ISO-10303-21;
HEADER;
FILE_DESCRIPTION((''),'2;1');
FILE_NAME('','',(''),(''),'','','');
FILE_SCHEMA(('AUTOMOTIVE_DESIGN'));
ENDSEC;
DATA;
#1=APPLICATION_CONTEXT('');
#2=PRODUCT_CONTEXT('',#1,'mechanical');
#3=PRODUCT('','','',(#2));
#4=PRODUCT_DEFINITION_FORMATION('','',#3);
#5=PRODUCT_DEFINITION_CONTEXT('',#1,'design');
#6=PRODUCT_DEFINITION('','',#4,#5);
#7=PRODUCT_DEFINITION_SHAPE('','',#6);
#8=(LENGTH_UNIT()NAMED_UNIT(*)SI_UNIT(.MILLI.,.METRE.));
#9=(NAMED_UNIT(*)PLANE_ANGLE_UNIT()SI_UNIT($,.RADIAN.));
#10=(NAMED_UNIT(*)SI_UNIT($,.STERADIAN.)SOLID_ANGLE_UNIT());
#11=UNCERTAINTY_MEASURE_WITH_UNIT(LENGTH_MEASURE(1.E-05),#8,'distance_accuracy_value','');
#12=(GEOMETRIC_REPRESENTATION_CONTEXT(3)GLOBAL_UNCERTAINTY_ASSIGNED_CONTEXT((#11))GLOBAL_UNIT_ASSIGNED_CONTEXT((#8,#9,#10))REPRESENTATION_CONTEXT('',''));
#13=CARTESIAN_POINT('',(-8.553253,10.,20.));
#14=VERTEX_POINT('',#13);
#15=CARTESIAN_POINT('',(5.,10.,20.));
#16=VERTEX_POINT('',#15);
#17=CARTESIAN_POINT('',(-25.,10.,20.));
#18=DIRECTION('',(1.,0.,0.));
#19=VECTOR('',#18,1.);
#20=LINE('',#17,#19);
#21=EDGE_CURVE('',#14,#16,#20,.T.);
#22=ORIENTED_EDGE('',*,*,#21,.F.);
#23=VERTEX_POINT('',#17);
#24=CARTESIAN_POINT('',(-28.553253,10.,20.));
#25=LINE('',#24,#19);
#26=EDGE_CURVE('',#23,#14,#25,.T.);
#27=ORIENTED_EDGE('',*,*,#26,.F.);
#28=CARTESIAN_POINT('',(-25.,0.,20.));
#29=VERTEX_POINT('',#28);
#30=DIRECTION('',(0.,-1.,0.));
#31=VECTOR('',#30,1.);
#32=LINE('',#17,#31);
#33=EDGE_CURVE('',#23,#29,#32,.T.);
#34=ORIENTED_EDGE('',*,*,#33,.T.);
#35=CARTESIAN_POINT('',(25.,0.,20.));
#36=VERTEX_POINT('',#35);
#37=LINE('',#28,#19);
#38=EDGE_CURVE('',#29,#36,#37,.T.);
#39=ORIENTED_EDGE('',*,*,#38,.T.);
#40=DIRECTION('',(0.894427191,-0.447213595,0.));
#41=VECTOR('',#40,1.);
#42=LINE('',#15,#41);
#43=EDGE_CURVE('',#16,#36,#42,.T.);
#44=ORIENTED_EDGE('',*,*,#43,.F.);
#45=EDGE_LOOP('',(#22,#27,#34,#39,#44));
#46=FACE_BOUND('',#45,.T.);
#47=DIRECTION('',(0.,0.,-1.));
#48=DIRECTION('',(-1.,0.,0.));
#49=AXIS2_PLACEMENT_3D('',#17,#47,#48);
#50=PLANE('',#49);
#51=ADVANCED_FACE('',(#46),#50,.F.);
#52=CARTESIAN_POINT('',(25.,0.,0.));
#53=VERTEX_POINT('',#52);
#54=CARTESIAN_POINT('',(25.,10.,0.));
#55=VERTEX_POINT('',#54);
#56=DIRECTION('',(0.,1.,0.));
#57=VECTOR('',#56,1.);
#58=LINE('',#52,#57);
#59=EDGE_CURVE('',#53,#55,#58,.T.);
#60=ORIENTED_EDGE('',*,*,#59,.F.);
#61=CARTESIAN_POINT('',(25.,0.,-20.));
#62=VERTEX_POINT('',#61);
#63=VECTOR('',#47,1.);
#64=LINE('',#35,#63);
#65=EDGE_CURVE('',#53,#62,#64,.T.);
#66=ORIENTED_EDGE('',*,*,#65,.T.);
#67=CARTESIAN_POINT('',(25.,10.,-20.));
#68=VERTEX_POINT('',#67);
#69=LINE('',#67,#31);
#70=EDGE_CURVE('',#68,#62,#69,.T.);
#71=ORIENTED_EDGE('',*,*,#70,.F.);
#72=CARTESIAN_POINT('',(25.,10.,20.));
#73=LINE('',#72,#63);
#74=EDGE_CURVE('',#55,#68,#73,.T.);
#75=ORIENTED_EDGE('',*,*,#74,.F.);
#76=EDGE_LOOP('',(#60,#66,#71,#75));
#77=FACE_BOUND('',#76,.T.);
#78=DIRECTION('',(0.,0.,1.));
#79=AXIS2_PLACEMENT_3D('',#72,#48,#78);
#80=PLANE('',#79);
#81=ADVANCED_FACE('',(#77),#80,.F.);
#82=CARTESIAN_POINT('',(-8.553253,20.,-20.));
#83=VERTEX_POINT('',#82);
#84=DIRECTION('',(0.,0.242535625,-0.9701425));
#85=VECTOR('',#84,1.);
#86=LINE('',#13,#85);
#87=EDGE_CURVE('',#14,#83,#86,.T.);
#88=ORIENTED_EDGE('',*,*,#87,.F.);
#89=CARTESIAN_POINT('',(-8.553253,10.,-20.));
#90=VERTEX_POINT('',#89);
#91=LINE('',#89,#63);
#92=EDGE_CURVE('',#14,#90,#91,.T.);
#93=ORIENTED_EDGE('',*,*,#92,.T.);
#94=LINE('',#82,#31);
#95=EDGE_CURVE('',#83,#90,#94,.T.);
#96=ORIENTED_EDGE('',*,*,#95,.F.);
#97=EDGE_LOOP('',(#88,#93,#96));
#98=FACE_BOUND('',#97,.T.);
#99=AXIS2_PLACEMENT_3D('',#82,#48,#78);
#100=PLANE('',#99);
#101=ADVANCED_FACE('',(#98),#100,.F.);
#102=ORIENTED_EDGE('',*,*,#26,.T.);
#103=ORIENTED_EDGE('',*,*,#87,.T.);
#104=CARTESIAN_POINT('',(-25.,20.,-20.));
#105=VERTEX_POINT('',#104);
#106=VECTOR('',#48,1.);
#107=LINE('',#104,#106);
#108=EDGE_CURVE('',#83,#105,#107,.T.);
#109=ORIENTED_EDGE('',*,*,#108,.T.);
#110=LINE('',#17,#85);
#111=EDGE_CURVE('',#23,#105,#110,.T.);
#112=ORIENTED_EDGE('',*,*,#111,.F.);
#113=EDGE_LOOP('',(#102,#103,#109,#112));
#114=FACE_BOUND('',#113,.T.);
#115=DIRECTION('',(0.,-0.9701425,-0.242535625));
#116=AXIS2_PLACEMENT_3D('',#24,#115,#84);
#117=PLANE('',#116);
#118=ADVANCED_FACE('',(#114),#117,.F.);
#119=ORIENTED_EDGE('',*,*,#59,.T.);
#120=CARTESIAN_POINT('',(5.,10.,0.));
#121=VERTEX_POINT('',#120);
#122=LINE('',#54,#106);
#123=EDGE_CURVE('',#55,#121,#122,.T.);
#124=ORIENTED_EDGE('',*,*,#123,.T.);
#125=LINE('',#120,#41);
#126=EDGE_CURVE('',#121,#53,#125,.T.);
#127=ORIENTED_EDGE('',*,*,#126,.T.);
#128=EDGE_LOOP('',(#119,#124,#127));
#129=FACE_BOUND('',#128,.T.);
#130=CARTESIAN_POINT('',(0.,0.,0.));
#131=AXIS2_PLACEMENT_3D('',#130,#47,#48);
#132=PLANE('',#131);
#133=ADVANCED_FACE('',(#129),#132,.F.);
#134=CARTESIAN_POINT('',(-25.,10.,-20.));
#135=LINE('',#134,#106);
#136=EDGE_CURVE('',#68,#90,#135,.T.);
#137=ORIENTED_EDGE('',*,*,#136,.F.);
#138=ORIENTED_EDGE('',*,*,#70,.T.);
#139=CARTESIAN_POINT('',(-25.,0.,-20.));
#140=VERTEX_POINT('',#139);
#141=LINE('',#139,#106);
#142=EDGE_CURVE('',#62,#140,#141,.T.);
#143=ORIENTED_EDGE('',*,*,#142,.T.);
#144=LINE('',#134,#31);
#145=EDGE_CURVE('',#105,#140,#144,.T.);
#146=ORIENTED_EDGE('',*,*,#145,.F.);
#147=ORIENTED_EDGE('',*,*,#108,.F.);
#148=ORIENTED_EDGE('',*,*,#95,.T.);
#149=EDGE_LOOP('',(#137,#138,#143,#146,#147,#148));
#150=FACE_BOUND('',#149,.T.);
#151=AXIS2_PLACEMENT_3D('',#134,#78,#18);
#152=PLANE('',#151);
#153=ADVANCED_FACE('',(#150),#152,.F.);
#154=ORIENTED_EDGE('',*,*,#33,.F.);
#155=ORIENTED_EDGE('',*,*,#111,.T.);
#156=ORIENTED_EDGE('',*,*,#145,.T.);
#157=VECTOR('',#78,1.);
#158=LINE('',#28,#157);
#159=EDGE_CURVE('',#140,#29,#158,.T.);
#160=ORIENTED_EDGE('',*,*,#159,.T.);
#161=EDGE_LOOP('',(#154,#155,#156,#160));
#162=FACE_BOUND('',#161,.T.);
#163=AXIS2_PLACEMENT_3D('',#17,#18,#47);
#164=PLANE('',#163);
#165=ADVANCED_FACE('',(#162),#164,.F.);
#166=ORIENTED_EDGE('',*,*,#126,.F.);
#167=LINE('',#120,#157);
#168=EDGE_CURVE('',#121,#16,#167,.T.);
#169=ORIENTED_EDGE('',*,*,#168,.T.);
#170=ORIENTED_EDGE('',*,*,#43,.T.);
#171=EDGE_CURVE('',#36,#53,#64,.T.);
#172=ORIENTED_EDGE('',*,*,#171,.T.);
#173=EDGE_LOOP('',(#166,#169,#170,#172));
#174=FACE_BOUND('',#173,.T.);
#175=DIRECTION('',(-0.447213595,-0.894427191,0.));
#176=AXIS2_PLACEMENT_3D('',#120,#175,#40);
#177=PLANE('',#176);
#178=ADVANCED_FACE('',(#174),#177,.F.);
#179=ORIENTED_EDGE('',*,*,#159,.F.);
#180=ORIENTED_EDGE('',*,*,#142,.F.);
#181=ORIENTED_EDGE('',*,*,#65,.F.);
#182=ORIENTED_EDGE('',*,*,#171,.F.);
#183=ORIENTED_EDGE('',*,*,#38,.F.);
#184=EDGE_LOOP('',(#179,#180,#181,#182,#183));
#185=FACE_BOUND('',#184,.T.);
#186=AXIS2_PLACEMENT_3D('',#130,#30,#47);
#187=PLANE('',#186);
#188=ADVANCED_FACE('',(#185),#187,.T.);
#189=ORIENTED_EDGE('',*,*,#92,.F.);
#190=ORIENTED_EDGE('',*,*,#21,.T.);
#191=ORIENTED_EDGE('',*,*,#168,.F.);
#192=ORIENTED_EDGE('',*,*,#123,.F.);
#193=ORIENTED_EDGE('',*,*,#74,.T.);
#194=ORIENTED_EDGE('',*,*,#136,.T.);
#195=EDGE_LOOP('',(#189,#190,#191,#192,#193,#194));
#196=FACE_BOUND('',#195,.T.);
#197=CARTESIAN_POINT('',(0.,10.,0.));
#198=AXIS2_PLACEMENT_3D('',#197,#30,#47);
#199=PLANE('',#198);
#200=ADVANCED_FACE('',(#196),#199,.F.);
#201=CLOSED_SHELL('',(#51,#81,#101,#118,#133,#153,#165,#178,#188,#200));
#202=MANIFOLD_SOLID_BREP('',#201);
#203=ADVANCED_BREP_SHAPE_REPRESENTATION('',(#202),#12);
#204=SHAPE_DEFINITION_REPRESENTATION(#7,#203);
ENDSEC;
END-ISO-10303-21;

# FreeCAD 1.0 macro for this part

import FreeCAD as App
import Part
import Sketcher
from FreeCAD import Vector
Q = App.Units.Quantity


def add_polygon(sketch, points):
    """Adds a closed chain of lines whose ends are joined by coincident constraints."""
    first, n = sketch.GeometryCount, len(points)
    for a, b in zip(points, points[1:] + points[:1]):
        sketch.addGeometry(Part.LineSegment(App.Vector(*a, 0), App.Vector(*b, 0)), False)
    for i in range(n):
        sketch.addConstraint(Sketcher.Constraint("Coincident", first + i, 2, first + (i + 1) % n, 1))

doc = App.newDocument("Part")
body = doc.addObject("PartDesign::Body", "Body")

sketch1 = body.newObject("Sketcher::SketchObject", "Sketch")
sketch1.AttachmentSupport = (doc.getObject("XZ_Plane"), [""])
sketch1.MapMode = "FlatFace"
add_polygon(sketch1, [(-25, -20), (-25, 20), (25, 20), (25, -20)])
sketch1.addConstraint(Sketcher.Constraint("Vertical", 0))
sketch1.addConstraint(Sketcher.Constraint("Horizontal", 1))
sketch1.addConstraint(Sketcher.Constraint("Vertical", 2))
sketch1.addConstraint(Sketcher.Constraint("Horizontal", 3))
sketch1.addConstraint(Sketcher.Constraint("Symmetric", 0, 2, 2, 2, -1, 1))
sketch1.addConstraint(Sketcher.Constraint("DistanceX", 1, 1, 1, 2, Q("50 mm")))
sketch1.addConstraint(Sketcher.Constraint("DistanceY", 0, 1, 0, 2, Q("40 mm")))
pad1 = body.newObject("PartDesign::Pad", "Pad")
pad1.Profile = sketch1
pad1.Length = 10
pad1.Reversed = True

sketch2 = body.newObject("Sketcher::SketchObject", "Sketch001")
sketch2.AttachmentSupport = (doc.getObject("XZ_Plane"), [""])
sketch2.MapMode = "FlatFace"
sketch2.AttachmentOffset = App.Placement(Vector(0, 0, -10), App.Rotation())
add_polygon(sketch2, [(-25, -20), (-25, 20), (-9, 20), (-9, -20)])
sketch2.addConstraint(Sketcher.Constraint("Vertical", 0))
sketch2.addConstraint(Sketcher.Constraint("Horizontal", 1))
sketch2.addConstraint(Sketcher.Constraint("Vertical", 2))
sketch2.addConstraint(Sketcher.Constraint("Horizontal", 3))
sketch2.addConstraint(Sketcher.Constraint("DistanceY", 0, 1, 0, 2, Q("40 mm")))
sketch2.addConstraint(Sketcher.Constraint("DistanceX", 0, 2, -1, 1, Q("25 mm")))
sketch2.addConstraint(Sketcher.Constraint("DistanceY", -1, 1, 0, 2, Q("20 mm")))
sketch2.addConstraint(Sketcher.Constraint("DistanceX", 1, 1, 1, 2, Q("16.446747 mm")))
pad2 = body.newObject("PartDesign::Pad", "Pad001")
pad2.Profile = sketch2
pad2.Length = 10
pad2.Reversed = True

sketch3 = body.newObject("Sketcher::SketchObject", "Sketch002")
sketch3.AttachmentSupport = (doc.getObject("YZ_Plane"), [""])
sketch3.MapMode = "FlatFace"
sketch3.AttachmentOffset = App.Placement(Vector(0, 0, -8.553253), App.Rotation())
add_polygon(sketch3, [(10, 20), (20, -20), (20, 20)])
sketch3.addConstraint(Sketcher.Constraint("Vertical", 1))
sketch3.addConstraint(Sketcher.Constraint("Horizontal", 2))
sketch3.addConstraint(Sketcher.Constraint("DistanceX", 2, 2, 2, 1, Q("10 mm")))
sketch3.addConstraint(Sketcher.Constraint("DistanceY", 1, 1, 1, 2, Q("40 mm")))
sketch3.addConstraint(Sketcher.Constraint("DistanceX", -1, 1, 0, 2, Q("20 mm")))
sketch3.addConstraint(Sketcher.Constraint("DistanceY", 0, 2, -1, 1, Q("20 mm")))
pocket1 = body.newObject("PartDesign::Pocket", "Pocket")
pocket1.Profile = sketch3
pocket1.Length = 20

sketch4 = body.newObject("Sketcher::SketchObject", "Sketch003")
sketch4.AttachmentSupport = (doc.getObject("XY_Plane"), [""])
sketch4.MapMode = "FlatFace"
sketch4.AttachmentOffset = App.Placement(Vector(0, 0, 20), App.Rotation())
add_polygon(sketch4, [(5, 10), (25, 0), (25, 10)])
sketch4.addConstraint(Sketcher.Constraint("Vertical", 1))
sketch4.addConstraint(Sketcher.Constraint("Horizontal", 2))
sketch4.addConstraint(Sketcher.Constraint("PointOnObject", 0, 2, -1))
sketch4.addConstraint(Sketcher.Constraint("DistanceX", 2, 2, 2, 1, Q("20 mm")))
sketch4.addConstraint(Sketcher.Constraint("DistanceY", 1, 1, 1, 2, Q("10 mm")))
sketch4.addConstraint(Sketcher.Constraint("DistanceX", -1, 1, 0, 2, Q("25 mm")))
pocket2 = body.newObject("PartDesign::Pocket", "Pocket001")
pocket2.Profile = sketch4
pocket2.Length = 20

doc.recompute()
